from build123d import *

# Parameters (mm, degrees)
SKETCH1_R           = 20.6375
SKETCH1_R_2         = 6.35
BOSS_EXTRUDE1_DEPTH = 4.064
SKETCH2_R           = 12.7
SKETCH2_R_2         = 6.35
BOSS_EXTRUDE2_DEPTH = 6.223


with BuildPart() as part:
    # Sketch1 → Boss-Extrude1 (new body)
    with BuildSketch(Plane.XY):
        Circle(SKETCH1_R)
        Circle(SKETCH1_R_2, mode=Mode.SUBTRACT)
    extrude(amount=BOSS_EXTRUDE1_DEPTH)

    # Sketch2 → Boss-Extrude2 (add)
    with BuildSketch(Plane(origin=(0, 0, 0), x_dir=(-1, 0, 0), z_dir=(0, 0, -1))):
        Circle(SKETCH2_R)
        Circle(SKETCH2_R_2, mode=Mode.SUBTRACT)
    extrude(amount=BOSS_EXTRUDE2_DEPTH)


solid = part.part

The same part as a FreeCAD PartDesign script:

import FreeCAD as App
import Part
import Sketcher

V = App.Vector
Q = App.Units.Quantity

doc = App.newDocument("Part")
body = doc.addObject("PartDesign::Body", "Body")

# Sketch on XY plane
sketch1 = body.newObject("Sketcher::SketchObject", "Sketch")
sketch1.AttachmentSupport = (doc.getObject("XY_Plane"), [""])
sketch1.MapMode = "FlatFace"
sketch1.addGeometry(Part.Circle(V(0, 0, 0), V(0, 0, 1), 21), False)
sketch1.addGeometry(Part.Circle(V(0, 0, 0), V(0, 0, 1), 6), False)
sketch1.addConstraint(Sketcher.Constraint("Coincident", 0, 3, -1, 1))
sketch1.addConstraint(Sketcher.Constraint("Coincident", 1, 3, -1, 1))
sketch1.addConstraint(Sketcher.Constraint("Diameter", 1, Q("0.5 in")))
sketch1.addConstraint(Sketcher.Constraint("Diameter", 0, Q("1.625 in")))
pad1 = body.newObject("PartDesign::Pad", "Pad")
pad1.Profile = sketch1
pad1.Length = Q("0.16 in")

# Sketch on XY plane
sketch2 = body.newObject("Sketcher::SketchObject", "Sketch001")
sketch2.AttachmentSupport = (doc.getObject("XY_Plane"), [""])
sketch2.MapMode = "FlatFace"
sketch2.addGeometry(Part.Circle(V(0, 0, 0), V(0, 0, 1), 13), False)
sketch2.addGeometry(Part.Circle(V(0, 0, 0), V(0, 0, 1), 6), False)
sketch2.addConstraint(Sketcher.Constraint("Coincident", 0, 3, -1, 1))
sketch2.addConstraint(Sketcher.Constraint("Coincident", 1, 3, -1, 1))
sketch2.addConstraint(Sketcher.Constraint("Diameter", 0, Q("1 in")))
sketch2.addConstraint(Sketcher.Constraint("Diameter", 1, Q("0.5 in")))
pad2 = body.newObject("PartDesign::Pad", "Pad001")
pad2.Profile = sketch2
pad2.Length = Q("0.245 in")
pad2.Reversed = True

doc.recompute()
